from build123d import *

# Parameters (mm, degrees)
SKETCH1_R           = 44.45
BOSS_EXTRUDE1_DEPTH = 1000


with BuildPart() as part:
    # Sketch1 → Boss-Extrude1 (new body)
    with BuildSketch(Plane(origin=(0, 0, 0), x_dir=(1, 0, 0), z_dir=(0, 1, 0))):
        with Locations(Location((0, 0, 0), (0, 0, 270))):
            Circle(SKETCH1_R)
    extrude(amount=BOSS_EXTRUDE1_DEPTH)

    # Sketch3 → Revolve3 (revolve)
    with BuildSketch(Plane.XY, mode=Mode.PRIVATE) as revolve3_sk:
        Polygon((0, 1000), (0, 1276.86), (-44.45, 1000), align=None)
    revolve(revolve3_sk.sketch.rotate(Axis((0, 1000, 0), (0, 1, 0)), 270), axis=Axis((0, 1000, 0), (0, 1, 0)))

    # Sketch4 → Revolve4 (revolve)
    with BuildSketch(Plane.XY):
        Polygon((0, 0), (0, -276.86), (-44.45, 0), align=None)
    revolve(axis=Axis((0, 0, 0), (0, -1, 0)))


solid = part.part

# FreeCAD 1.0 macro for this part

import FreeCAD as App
import Part
import Sketcher

V = App.Vector
Q = App.Units.Quantity


def add_polygon(sketch, points):
    """Adds a closed chain of lines whose ends are joined by coincident constraints."""
    first, n = sketch.GeometryCount, len(points)
    for a, b in zip(points, points[1:] + points[:1]):
        sketch.addGeometry(Part.LineSegment(App.Vector(*a, 0), App.Vector(*b, 0)), False)
    for i in range(n):
        sketch.addConstraint(Sketcher.Constraint("Coincident", first + i, 2, first + (i + 1) % n, 1))

doc = App.newDocument("Part")
body = doc.addObject("PartDesign::Body", "Body")

sketch1 = body.newObject("Sketcher::SketchObject", "Sketch")
sketch1.AttachmentSupport = (doc.getObject("XZ_Plane"), [""])
sketch1.MapMode = "FlatFace"
sketch1.addGeometry(Part.Circle(V(0, 0, 0), V(0, 0, 1), 44), False)
sketch1.addConstraint(Sketcher.Constraint("Coincident", 0, 3, -1, 1))
sketch1.addConstraint(Sketcher.Constraint("Diameter", 0, Q("3.5 in")))
pad1 = body.newObject("PartDesign::Pad", "Pad")
pad1.Profile = sketch1
pad1.Length = 1000
pad1.Reversed = True

sketch2 = body.newObject("Sketcher::SketchObject", "Sketch001")
sketch2.AttachmentSupport = (doc.getObject("XY_Plane"), [""])
sketch2.MapMode = "FlatFace"
add_polygon(sketch2, [(0, 1000), (0, 1277), (-44, 1000)])
sketch2.addConstraint(Sketcher.Constraint("Vertical", 0))
sketch2.addConstraint(Sketcher.Constraint("Horizontal", 2))
sketch2.addConstraint(Sketcher.Constraint("PointOnObject", 0, 2, -2))
sketch2.addConstraint(Sketcher.Constraint("DistanceY", 0, 1, 0, 2, Q("10.9 in")))
sketch2.addConstraint(Sketcher.Constraint("DistanceX", 2, 1, 2, 2, Q("1.75 in")))
sketch2.addConstraint(Sketcher.Constraint("DistanceY", -1, 1, 0, 2, Q("1276.86 mm")))
revolution = body.newObject("PartDesign::Revolution", "Revolution")
revolution.Profile = sketch2
revolution.ReferenceAxis = (sketch2, ["V_Axis"])
revolution.Angle = 360

sketch3 = body.newObject("Sketcher::SketchObject", "Sketch002")
sketch3.AttachmentSupport = (doc.getObject("XY_Plane"), [""])
sketch3.MapMode = "FlatFace"
add_polygon(sketch3, [(0, -277), (0, 0), (-44, 0)])
sketch3.addConstraint(Sketcher.Constraint("Vertical", 0))
sketch3.addConstraint(Sketcher.Constraint("Horizontal", 1))
sketch3.addConstraint(Sketcher.Constraint("Coincident", 0, 2, -1, 1))
sketch3.addConstraint(Sketcher.Constraint("DistanceY", 0, 1, 0, 2, Q("10.9 in")))
sketch3.addConstraint(Sketcher.Constraint("DistanceX", 1, 2, 1, 1, Q("1.75 in")))
revolution2 = body.newObject("PartDesign::Revolution", "Revolution001")
revolution2.Profile = sketch3
revolution2.ReferenceAxis = (sketch3, ["V_Axis"])
revolution2.Angle = 360

doc.recompute()
